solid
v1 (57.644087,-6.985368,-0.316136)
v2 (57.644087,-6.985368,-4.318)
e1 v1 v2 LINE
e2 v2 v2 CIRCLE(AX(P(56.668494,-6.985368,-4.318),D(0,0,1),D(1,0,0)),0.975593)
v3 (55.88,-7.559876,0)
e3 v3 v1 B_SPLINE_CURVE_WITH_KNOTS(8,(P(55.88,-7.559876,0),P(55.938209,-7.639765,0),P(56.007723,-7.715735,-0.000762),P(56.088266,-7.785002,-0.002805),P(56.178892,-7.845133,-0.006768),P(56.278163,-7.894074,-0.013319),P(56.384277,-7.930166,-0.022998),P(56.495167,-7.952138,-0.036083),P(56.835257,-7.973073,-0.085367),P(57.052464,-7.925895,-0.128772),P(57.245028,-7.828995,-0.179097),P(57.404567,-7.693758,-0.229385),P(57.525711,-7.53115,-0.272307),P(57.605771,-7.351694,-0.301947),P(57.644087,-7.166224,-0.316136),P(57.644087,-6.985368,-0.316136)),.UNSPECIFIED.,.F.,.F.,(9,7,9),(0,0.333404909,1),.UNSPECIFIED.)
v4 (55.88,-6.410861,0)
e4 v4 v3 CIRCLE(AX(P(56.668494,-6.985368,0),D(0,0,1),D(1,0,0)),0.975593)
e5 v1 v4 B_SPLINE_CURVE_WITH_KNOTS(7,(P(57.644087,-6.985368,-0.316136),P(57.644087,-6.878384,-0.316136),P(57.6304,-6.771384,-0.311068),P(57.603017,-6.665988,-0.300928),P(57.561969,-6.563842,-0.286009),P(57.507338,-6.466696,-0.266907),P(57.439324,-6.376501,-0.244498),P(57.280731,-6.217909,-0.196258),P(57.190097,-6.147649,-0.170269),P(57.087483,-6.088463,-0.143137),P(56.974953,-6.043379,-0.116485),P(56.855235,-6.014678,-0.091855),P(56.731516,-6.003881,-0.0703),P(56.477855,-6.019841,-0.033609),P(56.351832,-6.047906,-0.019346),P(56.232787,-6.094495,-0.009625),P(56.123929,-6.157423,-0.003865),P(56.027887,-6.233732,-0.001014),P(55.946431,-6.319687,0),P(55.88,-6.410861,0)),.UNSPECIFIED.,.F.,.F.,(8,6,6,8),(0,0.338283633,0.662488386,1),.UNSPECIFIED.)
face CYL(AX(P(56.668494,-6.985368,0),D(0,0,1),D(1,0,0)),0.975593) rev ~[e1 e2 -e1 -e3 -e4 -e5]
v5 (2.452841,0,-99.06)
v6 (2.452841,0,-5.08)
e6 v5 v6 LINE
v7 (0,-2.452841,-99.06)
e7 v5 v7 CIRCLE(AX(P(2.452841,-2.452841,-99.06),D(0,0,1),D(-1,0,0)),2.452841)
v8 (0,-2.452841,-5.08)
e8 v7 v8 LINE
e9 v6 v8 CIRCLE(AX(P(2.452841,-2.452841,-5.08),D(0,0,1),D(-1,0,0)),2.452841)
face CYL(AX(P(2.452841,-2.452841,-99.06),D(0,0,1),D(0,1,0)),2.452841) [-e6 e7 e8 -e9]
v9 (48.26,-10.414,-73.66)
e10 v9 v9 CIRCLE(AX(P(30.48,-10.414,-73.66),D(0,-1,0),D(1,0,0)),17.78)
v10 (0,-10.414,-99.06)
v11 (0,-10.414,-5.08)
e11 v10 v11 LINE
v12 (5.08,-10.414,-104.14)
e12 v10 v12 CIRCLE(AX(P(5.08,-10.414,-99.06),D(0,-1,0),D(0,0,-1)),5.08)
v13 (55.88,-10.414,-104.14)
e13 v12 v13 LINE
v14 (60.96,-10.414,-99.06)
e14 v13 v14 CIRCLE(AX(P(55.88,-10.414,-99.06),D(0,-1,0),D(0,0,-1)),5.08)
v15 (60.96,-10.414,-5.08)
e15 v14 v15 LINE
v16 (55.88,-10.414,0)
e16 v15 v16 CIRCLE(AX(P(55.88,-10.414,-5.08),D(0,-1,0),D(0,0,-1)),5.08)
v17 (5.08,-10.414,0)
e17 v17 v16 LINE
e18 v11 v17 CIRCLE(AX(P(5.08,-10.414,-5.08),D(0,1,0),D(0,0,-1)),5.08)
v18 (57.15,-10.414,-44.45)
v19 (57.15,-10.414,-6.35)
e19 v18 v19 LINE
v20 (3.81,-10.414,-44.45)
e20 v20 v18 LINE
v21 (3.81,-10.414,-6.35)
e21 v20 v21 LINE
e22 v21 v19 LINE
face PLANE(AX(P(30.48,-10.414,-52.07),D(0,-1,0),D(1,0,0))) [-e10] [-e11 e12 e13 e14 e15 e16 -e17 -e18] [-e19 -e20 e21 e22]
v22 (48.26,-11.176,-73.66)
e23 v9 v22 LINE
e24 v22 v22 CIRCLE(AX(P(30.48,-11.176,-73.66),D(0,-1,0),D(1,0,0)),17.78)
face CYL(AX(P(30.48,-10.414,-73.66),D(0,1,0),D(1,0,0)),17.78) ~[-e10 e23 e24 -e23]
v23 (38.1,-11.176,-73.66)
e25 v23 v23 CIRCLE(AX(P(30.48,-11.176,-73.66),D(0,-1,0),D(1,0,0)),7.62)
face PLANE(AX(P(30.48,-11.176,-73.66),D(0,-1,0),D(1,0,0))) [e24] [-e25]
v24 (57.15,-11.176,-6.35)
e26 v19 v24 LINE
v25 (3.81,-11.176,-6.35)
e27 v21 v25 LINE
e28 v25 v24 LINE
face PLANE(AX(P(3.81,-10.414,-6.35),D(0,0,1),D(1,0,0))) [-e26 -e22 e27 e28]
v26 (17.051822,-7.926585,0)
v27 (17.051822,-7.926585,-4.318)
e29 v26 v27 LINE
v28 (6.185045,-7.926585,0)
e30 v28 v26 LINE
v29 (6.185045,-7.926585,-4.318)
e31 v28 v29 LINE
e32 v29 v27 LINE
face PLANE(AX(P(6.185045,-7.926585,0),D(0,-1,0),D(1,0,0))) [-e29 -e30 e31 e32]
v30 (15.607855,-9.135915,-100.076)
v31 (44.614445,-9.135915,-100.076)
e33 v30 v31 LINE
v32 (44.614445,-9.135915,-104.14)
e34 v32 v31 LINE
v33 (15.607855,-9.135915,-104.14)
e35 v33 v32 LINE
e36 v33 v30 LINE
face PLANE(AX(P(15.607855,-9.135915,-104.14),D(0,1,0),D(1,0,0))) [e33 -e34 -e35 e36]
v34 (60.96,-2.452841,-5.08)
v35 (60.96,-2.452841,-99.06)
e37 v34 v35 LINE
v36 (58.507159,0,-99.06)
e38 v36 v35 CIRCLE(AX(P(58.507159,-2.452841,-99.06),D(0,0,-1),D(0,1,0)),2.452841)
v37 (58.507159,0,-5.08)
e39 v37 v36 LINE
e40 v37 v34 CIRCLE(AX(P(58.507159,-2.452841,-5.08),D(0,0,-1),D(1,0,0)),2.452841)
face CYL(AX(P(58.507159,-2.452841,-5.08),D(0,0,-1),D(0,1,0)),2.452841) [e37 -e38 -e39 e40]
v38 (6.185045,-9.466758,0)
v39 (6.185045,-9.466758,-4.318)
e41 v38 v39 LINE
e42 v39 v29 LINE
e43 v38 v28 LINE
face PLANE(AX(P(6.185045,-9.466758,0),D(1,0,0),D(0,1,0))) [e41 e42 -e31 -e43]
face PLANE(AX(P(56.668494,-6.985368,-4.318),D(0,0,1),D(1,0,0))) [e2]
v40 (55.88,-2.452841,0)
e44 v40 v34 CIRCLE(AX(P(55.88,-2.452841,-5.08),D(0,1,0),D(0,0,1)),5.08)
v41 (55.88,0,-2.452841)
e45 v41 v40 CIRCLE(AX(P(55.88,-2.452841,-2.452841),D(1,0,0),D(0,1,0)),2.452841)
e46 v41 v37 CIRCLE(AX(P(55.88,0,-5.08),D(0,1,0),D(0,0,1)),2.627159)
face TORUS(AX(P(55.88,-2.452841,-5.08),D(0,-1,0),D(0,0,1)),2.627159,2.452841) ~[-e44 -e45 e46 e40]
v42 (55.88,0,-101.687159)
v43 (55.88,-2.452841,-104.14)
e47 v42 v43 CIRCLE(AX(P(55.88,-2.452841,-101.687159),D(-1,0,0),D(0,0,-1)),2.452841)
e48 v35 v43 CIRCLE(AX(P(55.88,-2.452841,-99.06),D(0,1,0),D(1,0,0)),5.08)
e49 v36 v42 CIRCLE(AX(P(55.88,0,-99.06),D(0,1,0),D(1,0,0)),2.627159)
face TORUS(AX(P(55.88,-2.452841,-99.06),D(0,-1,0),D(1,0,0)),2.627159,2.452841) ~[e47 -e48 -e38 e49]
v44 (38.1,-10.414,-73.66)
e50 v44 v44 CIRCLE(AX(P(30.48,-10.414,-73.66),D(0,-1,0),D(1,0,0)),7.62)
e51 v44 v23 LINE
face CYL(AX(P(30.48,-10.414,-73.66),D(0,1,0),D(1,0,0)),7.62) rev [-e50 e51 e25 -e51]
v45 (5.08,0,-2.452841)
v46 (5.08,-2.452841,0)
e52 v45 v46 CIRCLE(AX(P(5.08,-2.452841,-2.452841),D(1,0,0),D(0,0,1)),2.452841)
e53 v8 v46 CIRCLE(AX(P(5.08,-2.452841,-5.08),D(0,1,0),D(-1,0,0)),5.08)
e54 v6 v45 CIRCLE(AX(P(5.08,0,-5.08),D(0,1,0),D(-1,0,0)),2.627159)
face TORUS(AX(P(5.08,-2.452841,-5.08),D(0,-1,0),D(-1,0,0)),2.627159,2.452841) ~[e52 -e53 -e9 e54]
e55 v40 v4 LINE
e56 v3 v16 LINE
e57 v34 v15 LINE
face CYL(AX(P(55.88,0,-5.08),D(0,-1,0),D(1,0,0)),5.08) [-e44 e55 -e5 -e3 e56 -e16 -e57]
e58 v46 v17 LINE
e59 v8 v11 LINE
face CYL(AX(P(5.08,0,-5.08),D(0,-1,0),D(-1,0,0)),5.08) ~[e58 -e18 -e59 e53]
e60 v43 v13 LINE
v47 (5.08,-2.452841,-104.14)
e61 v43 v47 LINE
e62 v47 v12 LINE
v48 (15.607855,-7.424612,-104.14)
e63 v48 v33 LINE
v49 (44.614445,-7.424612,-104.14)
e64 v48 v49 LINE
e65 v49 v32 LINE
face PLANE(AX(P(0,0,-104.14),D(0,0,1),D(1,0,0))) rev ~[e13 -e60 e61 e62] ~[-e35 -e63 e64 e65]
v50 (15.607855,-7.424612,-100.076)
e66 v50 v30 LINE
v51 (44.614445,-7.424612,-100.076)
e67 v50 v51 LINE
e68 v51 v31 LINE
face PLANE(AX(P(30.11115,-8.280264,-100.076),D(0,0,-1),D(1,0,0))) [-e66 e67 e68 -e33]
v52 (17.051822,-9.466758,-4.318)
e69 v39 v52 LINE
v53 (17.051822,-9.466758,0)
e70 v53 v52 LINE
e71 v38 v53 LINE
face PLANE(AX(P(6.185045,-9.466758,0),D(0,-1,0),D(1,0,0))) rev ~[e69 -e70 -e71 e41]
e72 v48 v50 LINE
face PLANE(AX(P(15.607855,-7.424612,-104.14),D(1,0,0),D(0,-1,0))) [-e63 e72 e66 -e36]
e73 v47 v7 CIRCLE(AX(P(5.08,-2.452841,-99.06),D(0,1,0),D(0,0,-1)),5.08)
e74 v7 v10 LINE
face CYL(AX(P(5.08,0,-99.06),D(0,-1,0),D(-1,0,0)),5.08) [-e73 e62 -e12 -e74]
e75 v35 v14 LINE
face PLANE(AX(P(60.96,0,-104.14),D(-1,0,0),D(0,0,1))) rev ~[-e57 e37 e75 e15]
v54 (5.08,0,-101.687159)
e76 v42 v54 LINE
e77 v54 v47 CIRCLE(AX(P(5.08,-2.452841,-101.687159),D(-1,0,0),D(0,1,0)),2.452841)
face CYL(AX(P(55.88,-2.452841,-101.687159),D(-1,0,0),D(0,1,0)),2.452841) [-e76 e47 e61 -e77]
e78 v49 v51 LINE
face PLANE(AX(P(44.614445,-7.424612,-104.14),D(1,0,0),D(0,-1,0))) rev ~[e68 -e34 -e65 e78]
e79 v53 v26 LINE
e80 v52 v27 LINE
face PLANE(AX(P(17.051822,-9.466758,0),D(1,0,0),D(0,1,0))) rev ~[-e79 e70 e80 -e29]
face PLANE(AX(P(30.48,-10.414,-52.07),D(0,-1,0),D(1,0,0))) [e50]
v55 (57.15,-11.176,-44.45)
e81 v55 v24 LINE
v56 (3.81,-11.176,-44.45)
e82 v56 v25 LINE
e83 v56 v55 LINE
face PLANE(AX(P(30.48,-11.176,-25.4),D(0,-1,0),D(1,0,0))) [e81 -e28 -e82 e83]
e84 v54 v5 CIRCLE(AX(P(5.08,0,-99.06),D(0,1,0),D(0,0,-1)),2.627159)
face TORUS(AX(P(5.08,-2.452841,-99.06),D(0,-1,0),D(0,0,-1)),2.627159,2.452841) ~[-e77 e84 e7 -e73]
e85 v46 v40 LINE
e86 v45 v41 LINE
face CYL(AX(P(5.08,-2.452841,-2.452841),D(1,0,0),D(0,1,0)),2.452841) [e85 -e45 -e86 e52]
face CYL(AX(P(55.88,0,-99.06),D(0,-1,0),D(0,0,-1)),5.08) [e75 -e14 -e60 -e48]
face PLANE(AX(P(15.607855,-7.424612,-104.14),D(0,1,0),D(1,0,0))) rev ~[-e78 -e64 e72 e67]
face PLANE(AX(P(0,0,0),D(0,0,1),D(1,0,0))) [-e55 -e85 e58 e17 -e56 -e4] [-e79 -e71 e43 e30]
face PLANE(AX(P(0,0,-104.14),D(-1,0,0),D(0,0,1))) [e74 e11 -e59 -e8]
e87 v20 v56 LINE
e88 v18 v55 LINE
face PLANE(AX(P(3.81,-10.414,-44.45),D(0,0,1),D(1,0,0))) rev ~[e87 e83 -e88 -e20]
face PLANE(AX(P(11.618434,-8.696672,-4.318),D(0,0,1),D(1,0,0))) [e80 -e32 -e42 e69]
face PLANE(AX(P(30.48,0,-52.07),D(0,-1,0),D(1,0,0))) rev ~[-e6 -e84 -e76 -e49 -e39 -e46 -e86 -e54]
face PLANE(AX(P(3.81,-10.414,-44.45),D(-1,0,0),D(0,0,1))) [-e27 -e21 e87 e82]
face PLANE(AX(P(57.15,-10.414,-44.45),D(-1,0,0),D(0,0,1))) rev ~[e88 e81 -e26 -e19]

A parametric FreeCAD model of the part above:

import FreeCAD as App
import Part
import Sketcher
from FreeCAD import Vector
Q = App.Units.Quantity


def edges_at(feature, points):
    """Names of the edges that pass closest to the given points."""
    edges = feature.Shape.Edges
    near = lambda p: min(range(len(edges)), key=lambda i: edges[i].distToShape(Part.Vertex(*p))[0])
    return sorted({f"Edge{near(p) + 1}" for p in points})

doc = App.newDocument("Part")
body = doc.addObject("PartDesign::Body", "Body")

# Sketch on XZ plane
sketch1 = body.newObject("Sketcher::SketchObject", "Sketch")
sketch1.AttachmentSupport = (doc.getObject("XZ_Plane"), [""])
sketch1.MapMode = "FlatFace"
sketch1.addGeometry(Part.LineSegment(Vector(0, 0, 0), Vector(0, -104, 0)), False)
sketch1.addGeometry(Part.LineSegment(Vector(0, -104, 0), Vector(61, -104, 0)), False)
sketch1.addGeometry(Part.LineSegment(Vector(61, -104, 0), Vector(61, 0, 0)), False)
sketch1.addGeometry(Part.LineSegment(Vector(61, 0, 0), Vector(0, 0, 0)), False)
sketch1.addConstraint(Sketcher.Constraint("Coincident", 0, 2, 1, 1))
sketch1.addConstraint(Sketcher.Constraint("Coincident", 1, 2, 2, 1))
sketch1.addConstraint(Sketcher.Constraint("Coincident", 2, 2, 3, 1))
sketch1.addConstraint(Sketcher.Constraint("Coincident", 3, 2, 0, 1))
sketch1.addConstraint(Sketcher.Constraint("Vertical", 0))
sketch1.addConstraint(Sketcher.Constraint("Horizontal", 1))
sketch1.addConstraint(Sketcher.Constraint("Vertical", 2))
sketch1.addConstraint(Sketcher.Constraint("Horizontal", 3))
sketch1.addConstraint(Sketcher.Constraint("Coincident", 3, 2, -1, 1))
sketch1.addConstraint(Sketcher.Constraint("DistanceX", 1, 1, 1, 2, Q("2.4 in")))
sketch1.addConstraint(Sketcher.Constraint("DistanceY", 0, 2, 0, 1, Q("4.1 in")))
pad1 = body.newObject("PartDesign::Pad", "Pad")
pad1.Profile = sketch1
pad1.Length = Q("0.41 in")
doc.recompute()

fillet = body.newObject("PartDesign::Fillet", "Fillet")
fillet.Base = (pad1, edges_at(pad1, [
    (60.96, -5.207, 0),
    (0, -5.207, 0),
    (0, -5.207, -104.14),
    (60.96, -5.207, -104.14),
]))
fillet.Radius = Q("0.2 in")

# Sketch on XZ plane
sketch2 = body.newObject("Sketcher::SketchObject", "Sketch001")
sketch2.AttachmentSupport = (doc.getObject("XZ_Plane"), [""])
sketch2.MapMode = "FlatFace"
sketch2.AttachmentOffset = App.Placement(Vector(0, 0, 0.41 * 25.4), App.Rotation())
sketch2.addGeometry(Part.LineSegment(Vector(4, -6, 0), Vector(4, -44, 0)), False)
sketch2.addGeometry(Part.LineSegment(Vector(4, -44, 0), Vector(57, -44, 0)), False)
sketch2.addGeometry(Part.LineSegment(Vector(57, -44, 0), Vector(57, -6, 0)), False)
sketch2.addGeometry(Part.LineSegment(Vector(57, -6, 0), Vector(4, -6, 0)), False)
sketch2.addGeometry(Part.Circle(Vector(30, -74, 0), Vector(0, 0, 1), 18), False)
sketch2.addGeometry(Part.Circle(Vector(30, -74, 0), Vector(0, 0, 1), 8), False)
sketch2.addConstraint(Sketcher.Constraint("Coincident", 0, 2, 1, 1))
sketch2.addConstraint(Sketcher.Constraint("Coincident", 1, 2, 2, 1))
sketch2.addConstraint(Sketcher.Constraint("Coincident", 2, 2, 3, 1))
sketch2.addConstraint(Sketcher.Constraint("Coincident", 3, 2, 0, 1))
sketch2.addConstraint(Sketcher.Constraint("Vertical", 0))
sketch2.addConstraint(Sketcher.Constraint("Horizontal", 1))
sketch2.addConstraint(Sketcher.Constraint("Vertical", 2))
sketch2.addConstraint(Sketcher.Constraint("Horizontal", 3))
sketch2.addConstraint(Sketcher.Constraint("Coincident", 5, 3, 4, 3))
sketch2.addConstraint(Sketcher.Constraint("Diameter", 4, Q("1.4 in")))
sketch2.addConstraint(Sketcher.Constraint("Diameter", 5, Q("0.6 in")))
sketch2.addConstraint(Sketcher.Constraint("DistanceX", 1, 1, 1, 2, Q("2.1 in")))
sketch2.addConstraint(Sketcher.Constraint("DistanceY", 0, 2, 0, 1, Q("1.5 in")))
sketch2.addConstraint(Sketcher.Constraint("DistanceX", -1, 1, 4, 3, Q("1.2 in")))
sketch2.addConstraint(Sketcher.Constraint("DistanceY", 4, 3, -1, 1, Q("2.9 in")))
sketch2.addConstraint(Sketcher.Constraint("DistanceX", -1, 1, 0, 2, Q("0.15 in")))
sketch2.addConstraint(Sketcher.Constraint("DistanceY", 0, 2, -1, 1, Q("1.75 in")))
pad2 = body.newObject("PartDesign::Pad", "Pad001")
pad2.Profile = sketch2
pad2.Length = Q("0.03 in")
doc.recompute()

fillet2 = body.newObject("PartDesign::Fillet", "Fillet001")
fillet2.Base = (pad2, edges_at(pad2, [(1.488, 0, -1.488)]))
fillet2.Radius = 2.452841

# Sketch on XY plane
sketch3 = body.newObject("Sketcher::SketchObject", "Sketch002")
sketch3.AttachmentSupport = (doc.getObject("XY_Plane"), [""])
sketch3.MapMode = "FlatFace"
sketch3.addGeometry(Part.Circle(Vector(56.7, -7, 0), Vector(0, 0, 1), 1), False)
sketch3.addGeometry(Part.LineSegment(Vector(6.2, -7.9, 0), Vector(6.2, -9.5, 0)), False)
sketch3.addGeometry(Part.LineSegment(Vector(6.2, -9.5, 0), Vector(17.1, -9.5, 0)), False)
sketch3.addGeometry(Part.LineSegment(Vector(17.1, -9.5, 0), Vector(17.1, -7.9, 0)), False)
sketch3.addGeometry(Part.LineSegment(Vector(17.1, -7.9, 0), Vector(6.2, -7.9, 0)), False)
sketch3.addConstraint(Sketcher.Constraint("Coincident", 1, 2, 2, 1))
sketch3.addConstraint(Sketcher.Constraint("Coincident", 2, 2, 3, 1))
sketch3.addConstraint(Sketcher.Constraint("Coincident", 3, 2, 4, 1))
sketch3.addConstraint(Sketcher.Constraint("Coincident", 4, 2, 1, 1))
sketch3.addConstraint(Sketcher.Constraint("Vertical", 1))
sketch3.addConstraint(Sketcher.Constraint("Horizontal", 2))
sketch3.addConstraint(Sketcher.Constraint("Vertical", 3))
sketch3.addConstraint(Sketcher.Constraint("Horizontal", 4))
sketch3.addConstraint(Sketcher.Constraint("Diameter", 0, 1.951186))
sketch3.addConstraint(Sketcher.Constraint("DistanceX", 2, 1, 2, 2, 10.866776))
sketch3.addConstraint(Sketcher.Constraint("DistanceY", 1, 2, 1, 1, 1.540173))
sketch3.addConstraint(Sketcher.Constraint("DistanceY", 0, 3, -1, 1, 6.985368))
sketch3.addConstraint(Sketcher.Constraint("DistanceX", -1, 1, 2, 2, 17.051822))
sketch3.addConstraint(Sketcher.Constraint("DistanceX", 1, 2, 0, 3, 50.483448))
sketch3.addConstraint(Sketcher.Constraint("DistanceY", 1, 2, 0, 3, 2.48139))
pocket1 = body.newObject("PartDesign::Pocket", "Pocket")
pocket1.Profile = sketch3
pocket1.Length = Q("0.17 in")

# Sketch on XY plane
sketch4 = body.newObject("Sketcher::SketchObject", "Sketch003")
sketch4.AttachmentSupport = (doc.getObject("XY_Plane"), [""])
sketch4.MapMode = "FlatFace"
sketch4.AttachmentOffset = App.Placement(Vector(0, 0, -4.1 * 25.4), App.Rotation())
sketch4.addGeometry(Part.LineSegment(Vector(15.6, -9.1, 0), Vector(15.6, -7.4, 0)), False)
sketch4.addGeometry(Part.LineSegment(Vector(15.6, -7.4, 0), Vector(44.6, -7.4, 0)), False)
sketch4.addGeometry(Part.LineSegment(Vector(44.6, -7.4, 0), Vector(44.6, -9.1, 0)), False)
sketch4.addGeometry(Part.LineSegment(Vector(44.6, -9.1, 0), Vector(15.6, -9.1, 0)), False)
sketch4.addConstraint(Sketcher.Constraint("Coincident", 0, 2, 1, 1))
sketch4.addConstraint(Sketcher.Constraint("Coincident", 1, 2, 2, 1))
sketch4.addConstraint(Sketcher.Constraint("Coincident", 2, 2, 3, 1))
sketch4.addConstraint(Sketcher.Constraint("Coincident", 3, 2, 0, 1))
sketch4.addConstraint(Sketcher.Constraint("Vertical", 0))
sketch4.addConstraint(Sketcher.Constraint("Horizontal", 1))
sketch4.addConstraint(Sketcher.Constraint("Vertical", 2))
sketch4.addConstraint(Sketcher.Constraint("Horizontal", 3))
sketch4.addConstraint(Sketcher.Constraint("DistanceX", 1, 1, 1, 2, 29.00659))
sketch4.addConstraint(Sketcher.Constraint("DistanceY", 0, 1, 0, 2, 1.711303))
sketch4.addConstraint(Sketcher.Constraint("DistanceX", -1, 1, 0, 2, 15.607855))
sketch4.addConstraint(Sketcher.Constraint("DistanceY", 0, 2, -1, 1, 7.424612))
pocket2 = body.newObject("PartDesign::Pocket", "Pocket001")
pocket2.Profile = sketch4
pocket2.Length = Q("0.16 in")
pocket2.Reversed = True

doc.recompute()
